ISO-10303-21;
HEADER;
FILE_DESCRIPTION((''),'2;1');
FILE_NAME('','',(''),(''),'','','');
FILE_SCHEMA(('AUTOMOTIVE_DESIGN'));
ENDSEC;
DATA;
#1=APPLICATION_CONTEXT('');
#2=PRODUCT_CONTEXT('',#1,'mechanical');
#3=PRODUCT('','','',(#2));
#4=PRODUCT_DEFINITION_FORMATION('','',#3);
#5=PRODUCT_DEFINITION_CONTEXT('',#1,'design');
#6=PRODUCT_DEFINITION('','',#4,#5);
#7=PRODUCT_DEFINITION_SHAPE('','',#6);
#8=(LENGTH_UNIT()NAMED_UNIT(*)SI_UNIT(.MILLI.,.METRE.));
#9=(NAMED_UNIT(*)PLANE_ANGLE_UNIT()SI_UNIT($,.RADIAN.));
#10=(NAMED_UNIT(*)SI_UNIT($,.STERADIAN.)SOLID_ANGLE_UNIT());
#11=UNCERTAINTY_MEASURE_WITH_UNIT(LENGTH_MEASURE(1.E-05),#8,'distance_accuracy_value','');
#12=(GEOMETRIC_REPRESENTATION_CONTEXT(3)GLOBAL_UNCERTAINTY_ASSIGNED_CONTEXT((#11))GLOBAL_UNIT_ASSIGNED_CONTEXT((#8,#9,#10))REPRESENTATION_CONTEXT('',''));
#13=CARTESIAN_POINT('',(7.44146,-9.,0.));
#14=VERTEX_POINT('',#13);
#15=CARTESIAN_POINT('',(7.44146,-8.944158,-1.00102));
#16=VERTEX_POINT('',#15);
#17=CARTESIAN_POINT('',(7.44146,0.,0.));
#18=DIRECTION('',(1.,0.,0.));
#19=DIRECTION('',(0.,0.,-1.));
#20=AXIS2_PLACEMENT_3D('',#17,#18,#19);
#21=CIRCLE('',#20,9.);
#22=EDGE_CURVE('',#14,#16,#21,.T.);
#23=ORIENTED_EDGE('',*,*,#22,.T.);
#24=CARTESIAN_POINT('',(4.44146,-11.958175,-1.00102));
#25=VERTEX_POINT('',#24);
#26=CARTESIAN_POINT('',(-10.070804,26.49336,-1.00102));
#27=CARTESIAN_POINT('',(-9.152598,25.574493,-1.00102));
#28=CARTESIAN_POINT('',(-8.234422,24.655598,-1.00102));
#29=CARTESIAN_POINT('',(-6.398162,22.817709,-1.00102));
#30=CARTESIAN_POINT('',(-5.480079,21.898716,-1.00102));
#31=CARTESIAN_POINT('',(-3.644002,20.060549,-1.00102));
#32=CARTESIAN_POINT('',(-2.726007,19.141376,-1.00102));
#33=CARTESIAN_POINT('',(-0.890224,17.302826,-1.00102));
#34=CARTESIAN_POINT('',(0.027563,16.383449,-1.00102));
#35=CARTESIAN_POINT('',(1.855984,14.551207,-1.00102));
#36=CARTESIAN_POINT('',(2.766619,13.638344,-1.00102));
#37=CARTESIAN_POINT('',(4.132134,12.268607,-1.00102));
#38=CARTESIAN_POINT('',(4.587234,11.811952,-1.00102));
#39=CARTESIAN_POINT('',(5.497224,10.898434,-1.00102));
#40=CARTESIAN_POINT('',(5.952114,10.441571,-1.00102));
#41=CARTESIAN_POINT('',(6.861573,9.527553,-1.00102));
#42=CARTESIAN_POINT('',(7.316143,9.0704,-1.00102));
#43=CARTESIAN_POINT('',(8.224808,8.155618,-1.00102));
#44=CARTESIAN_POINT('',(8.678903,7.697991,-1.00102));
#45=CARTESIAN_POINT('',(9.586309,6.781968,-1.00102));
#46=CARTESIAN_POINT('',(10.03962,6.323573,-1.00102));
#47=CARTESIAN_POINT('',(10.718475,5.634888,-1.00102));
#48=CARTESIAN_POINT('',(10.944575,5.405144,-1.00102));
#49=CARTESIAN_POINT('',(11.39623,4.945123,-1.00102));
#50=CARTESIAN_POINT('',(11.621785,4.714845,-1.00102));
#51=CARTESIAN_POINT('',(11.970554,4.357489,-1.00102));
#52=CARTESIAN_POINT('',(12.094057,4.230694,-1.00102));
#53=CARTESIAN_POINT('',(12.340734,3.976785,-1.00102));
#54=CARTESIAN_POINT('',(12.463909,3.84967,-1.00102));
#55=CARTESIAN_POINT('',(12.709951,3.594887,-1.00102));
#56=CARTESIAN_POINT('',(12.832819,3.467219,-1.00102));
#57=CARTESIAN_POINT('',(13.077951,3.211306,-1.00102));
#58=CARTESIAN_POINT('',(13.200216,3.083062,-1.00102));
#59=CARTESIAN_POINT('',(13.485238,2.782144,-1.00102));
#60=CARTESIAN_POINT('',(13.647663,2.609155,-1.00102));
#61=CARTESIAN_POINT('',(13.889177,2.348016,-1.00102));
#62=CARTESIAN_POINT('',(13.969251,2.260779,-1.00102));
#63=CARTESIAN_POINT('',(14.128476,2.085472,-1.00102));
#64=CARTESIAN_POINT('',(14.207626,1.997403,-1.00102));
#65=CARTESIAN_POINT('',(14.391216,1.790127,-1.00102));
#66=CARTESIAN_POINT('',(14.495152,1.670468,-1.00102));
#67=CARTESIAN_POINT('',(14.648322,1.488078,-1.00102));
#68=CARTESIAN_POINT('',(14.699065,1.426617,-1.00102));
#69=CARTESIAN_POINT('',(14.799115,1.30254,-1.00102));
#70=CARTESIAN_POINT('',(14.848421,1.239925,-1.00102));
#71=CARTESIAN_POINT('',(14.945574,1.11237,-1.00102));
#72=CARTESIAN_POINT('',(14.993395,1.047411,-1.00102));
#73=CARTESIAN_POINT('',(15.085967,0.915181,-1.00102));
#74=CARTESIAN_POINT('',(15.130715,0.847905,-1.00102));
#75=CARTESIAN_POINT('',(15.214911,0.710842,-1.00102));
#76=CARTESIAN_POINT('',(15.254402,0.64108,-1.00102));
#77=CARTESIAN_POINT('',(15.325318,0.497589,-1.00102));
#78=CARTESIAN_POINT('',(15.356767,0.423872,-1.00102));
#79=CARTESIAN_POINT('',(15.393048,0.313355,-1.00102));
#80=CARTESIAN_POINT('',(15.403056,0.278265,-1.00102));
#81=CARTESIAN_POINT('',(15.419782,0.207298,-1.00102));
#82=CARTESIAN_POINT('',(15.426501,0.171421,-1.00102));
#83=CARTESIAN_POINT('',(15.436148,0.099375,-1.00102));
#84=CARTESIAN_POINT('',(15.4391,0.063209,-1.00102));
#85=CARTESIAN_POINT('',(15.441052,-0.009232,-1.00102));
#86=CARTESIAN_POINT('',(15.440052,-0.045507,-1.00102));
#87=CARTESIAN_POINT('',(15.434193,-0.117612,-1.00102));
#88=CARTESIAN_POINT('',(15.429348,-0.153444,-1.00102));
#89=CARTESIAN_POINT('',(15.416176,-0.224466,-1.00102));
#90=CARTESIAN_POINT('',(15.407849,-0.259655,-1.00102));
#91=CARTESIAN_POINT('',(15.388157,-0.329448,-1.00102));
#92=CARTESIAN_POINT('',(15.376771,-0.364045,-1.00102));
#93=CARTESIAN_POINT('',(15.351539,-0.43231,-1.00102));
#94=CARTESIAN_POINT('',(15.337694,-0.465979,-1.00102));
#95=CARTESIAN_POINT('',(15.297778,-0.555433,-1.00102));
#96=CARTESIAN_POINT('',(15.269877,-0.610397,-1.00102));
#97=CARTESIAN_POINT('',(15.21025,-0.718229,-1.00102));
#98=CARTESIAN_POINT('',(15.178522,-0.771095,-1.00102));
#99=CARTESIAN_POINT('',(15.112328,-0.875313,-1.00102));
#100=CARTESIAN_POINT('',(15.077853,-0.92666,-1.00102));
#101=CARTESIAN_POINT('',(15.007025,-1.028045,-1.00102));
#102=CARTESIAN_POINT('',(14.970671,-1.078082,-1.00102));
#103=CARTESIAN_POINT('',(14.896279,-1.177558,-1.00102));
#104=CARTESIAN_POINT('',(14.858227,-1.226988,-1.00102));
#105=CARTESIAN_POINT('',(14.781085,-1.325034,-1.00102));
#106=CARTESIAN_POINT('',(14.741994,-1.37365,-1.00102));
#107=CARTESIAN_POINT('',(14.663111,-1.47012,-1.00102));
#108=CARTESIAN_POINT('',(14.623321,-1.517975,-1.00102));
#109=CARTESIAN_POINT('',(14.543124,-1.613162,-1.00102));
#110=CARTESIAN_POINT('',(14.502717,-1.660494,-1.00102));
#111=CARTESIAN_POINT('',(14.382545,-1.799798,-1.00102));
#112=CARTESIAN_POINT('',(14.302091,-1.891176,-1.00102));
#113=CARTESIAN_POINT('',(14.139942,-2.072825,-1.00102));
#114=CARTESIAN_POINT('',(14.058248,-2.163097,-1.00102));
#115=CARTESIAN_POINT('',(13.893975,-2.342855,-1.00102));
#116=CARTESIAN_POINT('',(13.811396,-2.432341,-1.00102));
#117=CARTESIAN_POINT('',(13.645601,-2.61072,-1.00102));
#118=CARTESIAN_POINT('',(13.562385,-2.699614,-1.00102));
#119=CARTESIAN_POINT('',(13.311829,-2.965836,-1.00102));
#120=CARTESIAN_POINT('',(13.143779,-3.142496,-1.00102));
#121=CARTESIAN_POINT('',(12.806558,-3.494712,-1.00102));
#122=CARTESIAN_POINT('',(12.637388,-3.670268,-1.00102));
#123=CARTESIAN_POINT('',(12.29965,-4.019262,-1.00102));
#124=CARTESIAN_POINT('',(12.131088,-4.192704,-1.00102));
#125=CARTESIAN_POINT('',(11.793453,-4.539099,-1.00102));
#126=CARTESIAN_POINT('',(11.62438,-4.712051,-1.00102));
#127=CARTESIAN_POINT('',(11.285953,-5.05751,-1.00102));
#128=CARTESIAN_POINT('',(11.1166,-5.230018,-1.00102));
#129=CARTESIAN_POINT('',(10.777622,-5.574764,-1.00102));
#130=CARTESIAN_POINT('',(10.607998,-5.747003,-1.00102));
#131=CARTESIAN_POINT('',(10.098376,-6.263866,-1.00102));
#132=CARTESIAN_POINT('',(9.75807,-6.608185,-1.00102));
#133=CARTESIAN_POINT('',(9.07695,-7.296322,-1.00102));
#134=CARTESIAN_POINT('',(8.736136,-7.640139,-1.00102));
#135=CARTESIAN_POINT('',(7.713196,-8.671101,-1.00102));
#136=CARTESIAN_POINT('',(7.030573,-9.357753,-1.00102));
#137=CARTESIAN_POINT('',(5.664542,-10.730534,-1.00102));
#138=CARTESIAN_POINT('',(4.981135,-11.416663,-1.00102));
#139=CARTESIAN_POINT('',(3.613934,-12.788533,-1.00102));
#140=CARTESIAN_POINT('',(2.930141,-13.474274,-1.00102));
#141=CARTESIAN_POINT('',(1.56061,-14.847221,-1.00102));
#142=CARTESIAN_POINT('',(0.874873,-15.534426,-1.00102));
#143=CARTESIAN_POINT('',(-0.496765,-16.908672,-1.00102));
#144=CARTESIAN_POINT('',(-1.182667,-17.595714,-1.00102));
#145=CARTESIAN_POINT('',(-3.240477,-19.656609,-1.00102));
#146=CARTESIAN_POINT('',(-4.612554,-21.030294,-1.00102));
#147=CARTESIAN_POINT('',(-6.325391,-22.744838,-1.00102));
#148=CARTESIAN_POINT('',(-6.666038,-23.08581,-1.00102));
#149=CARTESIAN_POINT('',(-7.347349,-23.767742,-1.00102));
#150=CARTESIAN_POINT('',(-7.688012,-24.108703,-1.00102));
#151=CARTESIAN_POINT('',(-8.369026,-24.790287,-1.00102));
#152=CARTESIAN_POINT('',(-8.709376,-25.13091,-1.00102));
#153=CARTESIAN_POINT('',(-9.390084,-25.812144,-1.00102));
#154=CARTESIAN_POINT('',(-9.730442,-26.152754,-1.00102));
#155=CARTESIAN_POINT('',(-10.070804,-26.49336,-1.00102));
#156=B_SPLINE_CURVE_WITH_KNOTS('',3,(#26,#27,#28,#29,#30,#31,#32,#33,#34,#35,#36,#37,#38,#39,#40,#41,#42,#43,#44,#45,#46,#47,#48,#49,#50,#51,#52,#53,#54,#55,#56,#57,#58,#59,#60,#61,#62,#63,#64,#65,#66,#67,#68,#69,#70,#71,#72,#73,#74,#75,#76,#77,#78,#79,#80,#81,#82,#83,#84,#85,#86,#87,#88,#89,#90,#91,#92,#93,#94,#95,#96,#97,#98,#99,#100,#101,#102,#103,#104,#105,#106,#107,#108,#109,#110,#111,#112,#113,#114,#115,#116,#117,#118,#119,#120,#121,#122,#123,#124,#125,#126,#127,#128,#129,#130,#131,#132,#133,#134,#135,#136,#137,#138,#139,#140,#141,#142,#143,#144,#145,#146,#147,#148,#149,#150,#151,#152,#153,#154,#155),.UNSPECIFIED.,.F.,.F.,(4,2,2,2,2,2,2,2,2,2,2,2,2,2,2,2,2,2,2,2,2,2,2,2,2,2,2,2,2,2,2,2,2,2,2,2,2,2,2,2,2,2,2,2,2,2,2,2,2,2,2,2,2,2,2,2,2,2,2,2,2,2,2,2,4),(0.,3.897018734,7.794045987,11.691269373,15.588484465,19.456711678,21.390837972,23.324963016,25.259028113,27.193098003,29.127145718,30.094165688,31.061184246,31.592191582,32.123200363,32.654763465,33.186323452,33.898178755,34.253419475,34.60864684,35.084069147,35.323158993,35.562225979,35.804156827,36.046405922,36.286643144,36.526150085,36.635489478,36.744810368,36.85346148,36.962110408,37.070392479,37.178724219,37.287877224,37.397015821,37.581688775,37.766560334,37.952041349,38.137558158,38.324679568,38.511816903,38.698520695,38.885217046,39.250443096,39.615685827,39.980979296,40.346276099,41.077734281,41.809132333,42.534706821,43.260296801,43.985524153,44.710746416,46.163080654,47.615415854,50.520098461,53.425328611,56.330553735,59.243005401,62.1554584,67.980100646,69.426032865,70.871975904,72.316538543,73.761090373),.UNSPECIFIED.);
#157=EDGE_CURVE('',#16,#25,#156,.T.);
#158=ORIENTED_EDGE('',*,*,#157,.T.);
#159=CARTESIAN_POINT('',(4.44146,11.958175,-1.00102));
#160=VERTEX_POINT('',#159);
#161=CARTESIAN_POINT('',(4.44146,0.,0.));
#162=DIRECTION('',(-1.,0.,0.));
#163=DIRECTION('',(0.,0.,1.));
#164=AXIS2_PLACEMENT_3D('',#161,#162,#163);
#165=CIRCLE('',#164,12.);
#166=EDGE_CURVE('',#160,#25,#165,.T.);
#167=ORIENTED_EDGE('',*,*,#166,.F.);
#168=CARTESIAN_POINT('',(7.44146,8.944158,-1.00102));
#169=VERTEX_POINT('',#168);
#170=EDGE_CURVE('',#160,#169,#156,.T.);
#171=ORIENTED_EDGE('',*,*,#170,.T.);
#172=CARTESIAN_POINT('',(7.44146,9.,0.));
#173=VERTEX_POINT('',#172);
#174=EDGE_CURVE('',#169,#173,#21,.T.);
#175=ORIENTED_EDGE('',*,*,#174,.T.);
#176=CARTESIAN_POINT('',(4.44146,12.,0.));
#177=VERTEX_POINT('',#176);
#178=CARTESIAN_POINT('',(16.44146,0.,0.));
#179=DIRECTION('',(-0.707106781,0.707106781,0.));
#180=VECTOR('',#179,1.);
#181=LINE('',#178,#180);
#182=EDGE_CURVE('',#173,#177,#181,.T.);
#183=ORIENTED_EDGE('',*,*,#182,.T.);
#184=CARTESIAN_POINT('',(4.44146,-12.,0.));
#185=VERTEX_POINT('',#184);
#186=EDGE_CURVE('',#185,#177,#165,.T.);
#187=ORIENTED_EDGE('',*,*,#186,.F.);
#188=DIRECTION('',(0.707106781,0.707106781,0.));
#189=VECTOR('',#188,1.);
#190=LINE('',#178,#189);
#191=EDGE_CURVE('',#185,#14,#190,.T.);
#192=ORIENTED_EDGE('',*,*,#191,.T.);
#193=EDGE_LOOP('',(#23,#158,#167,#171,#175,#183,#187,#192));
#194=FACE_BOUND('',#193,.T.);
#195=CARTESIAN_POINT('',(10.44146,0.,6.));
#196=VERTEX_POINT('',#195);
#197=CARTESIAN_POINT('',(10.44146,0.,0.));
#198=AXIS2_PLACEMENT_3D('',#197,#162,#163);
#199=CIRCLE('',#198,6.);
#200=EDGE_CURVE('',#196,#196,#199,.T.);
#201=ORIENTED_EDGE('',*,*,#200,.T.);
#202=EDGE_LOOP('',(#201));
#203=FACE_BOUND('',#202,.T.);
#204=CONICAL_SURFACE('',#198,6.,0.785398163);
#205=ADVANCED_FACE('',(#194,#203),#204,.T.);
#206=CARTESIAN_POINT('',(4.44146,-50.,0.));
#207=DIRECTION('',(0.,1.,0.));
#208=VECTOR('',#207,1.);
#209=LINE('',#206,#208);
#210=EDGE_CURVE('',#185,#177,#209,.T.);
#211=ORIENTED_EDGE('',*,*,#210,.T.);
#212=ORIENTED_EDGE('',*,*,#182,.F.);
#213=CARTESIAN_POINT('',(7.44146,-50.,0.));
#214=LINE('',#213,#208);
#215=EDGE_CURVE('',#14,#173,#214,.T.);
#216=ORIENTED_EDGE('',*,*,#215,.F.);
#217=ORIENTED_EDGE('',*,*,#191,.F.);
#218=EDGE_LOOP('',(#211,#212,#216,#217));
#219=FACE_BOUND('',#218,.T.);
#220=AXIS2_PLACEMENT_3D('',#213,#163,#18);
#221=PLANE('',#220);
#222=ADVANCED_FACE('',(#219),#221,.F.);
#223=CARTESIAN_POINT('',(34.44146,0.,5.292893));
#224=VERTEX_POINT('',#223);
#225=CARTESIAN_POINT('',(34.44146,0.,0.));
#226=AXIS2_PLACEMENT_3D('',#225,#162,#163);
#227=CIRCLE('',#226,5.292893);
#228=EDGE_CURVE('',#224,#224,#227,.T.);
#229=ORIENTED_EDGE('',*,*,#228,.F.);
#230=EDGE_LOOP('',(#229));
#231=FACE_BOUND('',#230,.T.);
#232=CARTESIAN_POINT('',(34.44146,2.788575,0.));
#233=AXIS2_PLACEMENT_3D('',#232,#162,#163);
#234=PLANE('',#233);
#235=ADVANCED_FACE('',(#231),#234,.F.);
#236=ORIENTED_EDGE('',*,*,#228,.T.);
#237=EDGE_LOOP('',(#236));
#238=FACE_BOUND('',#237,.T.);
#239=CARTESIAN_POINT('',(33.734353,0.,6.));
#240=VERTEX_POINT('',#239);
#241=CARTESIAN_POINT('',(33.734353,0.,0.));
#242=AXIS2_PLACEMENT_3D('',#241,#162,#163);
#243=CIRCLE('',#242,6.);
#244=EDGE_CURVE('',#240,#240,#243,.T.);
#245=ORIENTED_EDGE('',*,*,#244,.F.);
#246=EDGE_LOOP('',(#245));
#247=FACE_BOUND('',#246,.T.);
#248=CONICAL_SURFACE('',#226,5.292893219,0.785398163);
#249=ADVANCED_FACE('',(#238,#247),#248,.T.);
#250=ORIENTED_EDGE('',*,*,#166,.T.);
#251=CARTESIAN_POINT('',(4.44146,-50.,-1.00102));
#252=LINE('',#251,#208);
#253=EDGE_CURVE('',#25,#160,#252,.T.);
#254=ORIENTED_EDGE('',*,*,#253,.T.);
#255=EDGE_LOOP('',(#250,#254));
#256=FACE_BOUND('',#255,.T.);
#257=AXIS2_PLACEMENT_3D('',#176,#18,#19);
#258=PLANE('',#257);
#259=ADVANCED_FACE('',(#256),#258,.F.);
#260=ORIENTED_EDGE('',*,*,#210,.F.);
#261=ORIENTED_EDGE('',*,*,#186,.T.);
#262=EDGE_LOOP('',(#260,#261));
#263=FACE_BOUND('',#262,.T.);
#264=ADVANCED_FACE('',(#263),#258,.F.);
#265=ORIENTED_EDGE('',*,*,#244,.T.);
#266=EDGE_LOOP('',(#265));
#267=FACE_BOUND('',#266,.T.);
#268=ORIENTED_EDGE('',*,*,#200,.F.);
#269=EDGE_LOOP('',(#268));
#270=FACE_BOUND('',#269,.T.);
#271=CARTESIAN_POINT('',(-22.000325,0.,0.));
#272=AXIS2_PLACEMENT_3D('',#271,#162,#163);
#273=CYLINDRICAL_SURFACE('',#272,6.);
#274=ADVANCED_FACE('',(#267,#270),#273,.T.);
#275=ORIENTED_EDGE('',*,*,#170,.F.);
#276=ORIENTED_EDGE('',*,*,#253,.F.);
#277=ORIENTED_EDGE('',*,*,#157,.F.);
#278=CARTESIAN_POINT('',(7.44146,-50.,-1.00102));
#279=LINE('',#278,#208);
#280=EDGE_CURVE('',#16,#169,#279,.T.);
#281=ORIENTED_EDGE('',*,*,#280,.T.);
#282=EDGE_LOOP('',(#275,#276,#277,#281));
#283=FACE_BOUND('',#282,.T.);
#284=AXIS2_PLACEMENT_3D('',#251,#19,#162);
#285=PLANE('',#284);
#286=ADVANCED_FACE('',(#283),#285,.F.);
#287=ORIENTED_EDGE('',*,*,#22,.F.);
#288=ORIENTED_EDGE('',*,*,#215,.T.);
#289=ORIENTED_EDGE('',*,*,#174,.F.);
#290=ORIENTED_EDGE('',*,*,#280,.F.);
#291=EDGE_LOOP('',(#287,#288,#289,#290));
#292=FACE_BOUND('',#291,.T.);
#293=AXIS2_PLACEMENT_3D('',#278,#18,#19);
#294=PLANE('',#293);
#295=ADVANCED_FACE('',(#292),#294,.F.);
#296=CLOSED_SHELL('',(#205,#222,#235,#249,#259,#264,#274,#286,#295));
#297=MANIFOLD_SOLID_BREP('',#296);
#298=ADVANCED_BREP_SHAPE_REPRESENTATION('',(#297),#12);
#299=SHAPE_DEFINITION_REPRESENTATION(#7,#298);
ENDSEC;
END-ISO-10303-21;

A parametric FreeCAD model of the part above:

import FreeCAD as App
import Part
import Sketcher
from FreeCAD import Vector
Q = App.Units.Quantity


def add_polygon(sketch, points):
    """Adds a closed chain of lines whose ends are joined by coincident constraints."""
    first, n = sketch.GeometryCount, len(points)
    for a, b in zip(points, points[1:] + points[:1]):
        sketch.addGeometry(Part.LineSegment(App.Vector(*a, 0), App.Vector(*b, 0)), False)
    for i in range(n):
        sketch.addConstraint(Sketcher.Constraint("Coincident", first + i, 2, first + (i + 1) % n, 1))

doc = App.newDocument("Part")
body = doc.addObject("PartDesign::Body", "Body")

# Sketch on XY plane
sketch1 = body.newObject("Sketcher::SketchObject", "Sketch")
sketch1.AttachmentSupport = (doc.getObject("XY_Plane"), [""])
sketch1.MapMode = "FlatFace"
add_polygon(sketch1, [(33.7, 6), (10.4, 6), (4.4, 12), (4.4, 0), (34.4, 0), (34.4, 5.3)])  # lines 0-5
sketch1.addConstraint(Sketcher.Constraint("Horizontal", 0))
sketch1.addConstraint(Sketcher.Constraint("Vertical", 2))
sketch1.addConstraint(Sketcher.Constraint("Horizontal", 3))
sketch1.addConstraint(Sketcher.Constraint("Vertical", 4))
sketch1.addConstraint(Sketcher.Constraint("PointOnObject", 2, 2, -1))
sketch1.addConstraint(Sketcher.Constraint("Parallel", 1, 5))
sketch1.addConstraint(Sketcher.Constraint("DistanceX", 3, 1, 3, 2, Q("30 mm")))
sketch1.addConstraint(Sketcher.Constraint("DistanceY", 2, 2, 2, 1, Q("12 mm")))
sketch1.addConstraint(Sketcher.Constraint("Angle", 1, Q("135 deg")))
sketch1.addConstraint(Sketcher.Constraint("Distance", 5, Q("1 mm")))
sketch1.addConstraint(Sketcher.Constraint("DistanceY", -1, 1, 0, 2, Q("6 mm")))
sketch1.addConstraint(Sketcher.Constraint("DistanceX", -1, 1, 0, 2, Q("10.44146 mm")))
revolution = body.newObject("PartDesign::Revolution", "Revolution")
revolution.Profile = sketch1
revolution.ReferenceAxis = (sketch1, ["H_Axis"])
revolution.Angle = 360

# Sketch on XZ plane
sketch2 = body.newObject("Sketcher::SketchObject", "Sketch001")
sketch2.AttachmentSupport = (doc.getObject("XZ_Plane"), [""])
sketch2.MapMode = "FlatFace"
add_polygon(sketch2, [(4.4, -1), (4.4, 0), (7.4, 0), (7.4, -1)])  # lines 0-3
sketch2.addConstraint(Sketcher.Constraint("Vertical", 0))
sketch2.addConstraint(Sketcher.Constraint("Horizontal", 1))
sketch2.addConstraint(Sketcher.Constraint("Vertical", 2))
sketch2.addConstraint(Sketcher.Constraint("Horizontal", 3))
sketch2.addConstraint(Sketcher.Constraint("PointOnObject", 0, 2, -1))
sketch2.addConstraint(Sketcher.Constraint("DistanceX", 1, 1, 1, 2, Q("3 mm")))
sketch2.addConstraint(Sketcher.Constraint("DistanceY", 0, 1, 0, 2, Q("1.00102 mm")))
sketch2.addConstraint(Sketcher.Constraint("DistanceX", -1, 1, 0, 2, Q("4.44146 mm")))
pocket1 = body.newObject("PartDesign::Pocket", "Pocket")
pocket1.Profile = sketch2
pocket1.Length = 100
pocket1.Midplane = True

doc.recompute()
